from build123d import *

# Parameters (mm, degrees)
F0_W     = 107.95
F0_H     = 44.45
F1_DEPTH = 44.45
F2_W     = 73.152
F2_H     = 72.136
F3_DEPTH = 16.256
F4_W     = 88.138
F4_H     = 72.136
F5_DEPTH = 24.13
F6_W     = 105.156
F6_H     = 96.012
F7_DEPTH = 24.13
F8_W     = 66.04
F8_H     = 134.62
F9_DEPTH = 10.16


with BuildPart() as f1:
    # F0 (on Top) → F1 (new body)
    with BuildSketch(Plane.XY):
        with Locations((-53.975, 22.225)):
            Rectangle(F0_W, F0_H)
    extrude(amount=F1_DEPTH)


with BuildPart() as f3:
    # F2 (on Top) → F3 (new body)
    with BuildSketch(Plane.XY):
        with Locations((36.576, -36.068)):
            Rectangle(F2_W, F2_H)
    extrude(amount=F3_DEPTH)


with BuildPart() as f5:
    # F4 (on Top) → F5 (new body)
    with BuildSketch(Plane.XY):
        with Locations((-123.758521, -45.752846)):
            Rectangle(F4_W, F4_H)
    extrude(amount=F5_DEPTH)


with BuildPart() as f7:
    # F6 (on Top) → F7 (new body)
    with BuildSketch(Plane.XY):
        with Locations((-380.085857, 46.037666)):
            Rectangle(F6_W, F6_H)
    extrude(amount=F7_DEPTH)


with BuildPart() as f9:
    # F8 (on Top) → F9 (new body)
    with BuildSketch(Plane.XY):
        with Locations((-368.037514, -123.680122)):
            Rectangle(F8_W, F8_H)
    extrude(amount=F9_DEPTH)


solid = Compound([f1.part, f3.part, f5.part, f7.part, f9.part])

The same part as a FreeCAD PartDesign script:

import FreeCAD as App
import Part
import Sketcher

V = App.Vector
Q = App.Units.Quantity


def add_polygon(sketch, points):
    """Adds a closed chain of lines whose ends are joined by coincident constraints."""
    first, n = sketch.GeometryCount, len(points)
    for a, b in zip(points, points[1:] + points[:1]):
        sketch.addGeometry(Part.LineSegment(App.Vector(*a, 0), App.Vector(*b, 0)), False)
    for i in range(n):
        sketch.addConstraint(Sketcher.Constraint("Coincident", first + i, 2, first + (i + 1) % n, 1))

doc = App.newDocument("Part")
params = doc.addObject("Spreadsheet::Sheet", "Params")
for row, (alias, value) in enumerate([
    ("sketch1_width", "4.25 in"),
    ("sketch1_height", "1.75 in"),
    ("pad1_length", "1.75 in"),
    ("sketch2_width", "2.88 in"),
    ("sketch2_height", "2.84 in"),
    ("pad2_length", "0.64 in"),
    ("sketch3_width", "3.47 in"),
    ("sketch3_height", "2.84 in"),
    ("pad3_length", "0.95 in"),
    ("sketch4_width", "4.14 in"),
    ("sketch4_height", "3.78 in"),
    ("pad4_length", "0.95 in"),
    ("sketch5_width", "2.6 in"),
    ("sketch5_height", "5.3 in"),
    ("pad5_length", "0.4 in"),
], start=1):
    params.set(f"A{row}", alias)
    params.set(f"B{row}", "=" + value)
    params.setAlias(f"B{row}", alias)

body = doc.addObject("PartDesign::Body", "Body")

# Sketch on XY plane
sketch1 = body.newObject("Sketcher::SketchObject", "Sketch")
sketch1.AttachmentSupport = (doc.getObject("XY_Plane"), [""])
sketch1.MapMode = "FlatFace"
add_polygon(sketch1, [(-108, 44), (-108, 0), (0, 0), (0, 44)])  # lines 0-3
sketch1.addConstraint([
    Sketcher.Constraint("Vertical", 0),
    Sketcher.Constraint("Horizontal", 1),
    Sketcher.Constraint("Vertical", 2),
    Sketcher.Constraint("Horizontal", 3),
    Sketcher.Constraint("Coincident", 1, 2, -1, 1),
    Sketcher.Constraint("DistanceX", 1, 1, 1, 2, Q("4.25 in")),
    Sketcher.Constraint("DistanceY", 0, 2, 0, 1, Q("1.75 in")),
])
sketch1.setExpression("Constraints[9]", "Params.sketch1_width")
sketch1.setExpression("Constraints[10]", "Params.sketch1_height")
pad1 = body.newObject("PartDesign::Pad", "Pad")
pad1.Profile = sketch1
pad1.setExpression("Length", "Params.pad1_length")
body2 = doc.addObject("PartDesign::Body", "Body001")

# Sketch on XY plane
sketch2 = body2.newObject("Sketcher::SketchObject", "Sketch001")
sketch2.AttachmentSupport = (doc.getObject("XY_Plane001"), [""])
sketch2.MapMode = "FlatFace"
add_polygon(sketch2, [(0, 0), (0, -72), (73, -72), (73, 0)])  # lines 0-3
sketch2.addConstraint([
    Sketcher.Constraint("Vertical", 0),
    Sketcher.Constraint("Horizontal", 1),
    Sketcher.Constraint("Vertical", 2),
    Sketcher.Constraint("Horizontal", 3),
    Sketcher.Constraint("Coincident", 3, 2, -1, 1),
    Sketcher.Constraint("DistanceX", 1, 1, 1, 2, Q("2.88 in")),
    Sketcher.Constraint("DistanceY", 0, 2, 0, 1, Q("2.84 in")),
])
sketch2.setExpression("Constraints[9]", "Params.sketch2_width")
sketch2.setExpression("Constraints[10]", "Params.sketch2_height")
pad2 = body2.newObject("PartDesign::Pad", "Pad001")
pad2.Profile = sketch2
pad2.setExpression("Length", "Params.pad2_length")
body3 = doc.addObject("PartDesign::Body", "Body002")

# Sketch on XY plane
sketch3 = body3.newObject("Sketcher::SketchObject", "Sketch002")
sketch3.AttachmentSupport = (doc.getObject("XY_Plane002"), [""])
sketch3.MapMode = "FlatFace"
add_polygon(sketch3, [(-168, -10), (-168, -82), (-80, -82), (-80, -10)])  # lines 0-3
sketch3.addConstraint([
    Sketcher.Constraint("Vertical", 0),
    Sketcher.Constraint("Horizontal", 1),
    Sketcher.Constraint("Vertical", 2),
    Sketcher.Constraint("Horizontal", 3),
    Sketcher.Constraint("DistanceX", 1, 1, 1, 2, Q("3.47 in")),
    Sketcher.Constraint("DistanceY", 0, 2, 0, 1, Q("2.84 in")),
    Sketcher.Constraint("DistanceX", 0, 2, -1, 1, Q("167.827521 mm")),
    Sketcher.Constraint("DistanceY", 0, 2, -1, 1, Q("81.820846 mm")),
])
sketch3.setExpression("Constraints[8]", "Params.sketch3_width")
sketch3.setExpression("Constraints[9]", "Params.sketch3_height")
pad3 = body3.newObject("PartDesign::Pad", "Pad002")
pad3.Profile = sketch3
pad3.setExpression("Length", "Params.pad3_length")
body4 = doc.addObject("PartDesign::Body", "Body003")

# Sketch on XY plane
sketch4 = body4.newObject("Sketcher::SketchObject", "Sketch003")
sketch4.AttachmentSupport = (doc.getObject("XY_Plane003"), [""])
sketch4.MapMode = "FlatFace"
add_polygon(sketch4, [(-433, 94), (-433, -2), (-328, -2), (-328, 94)])  # lines 0-3
sketch4.addConstraint([
    Sketcher.Constraint("Vertical", 0),
    Sketcher.Constraint("Horizontal", 1),
    Sketcher.Constraint("Vertical", 2),
    Sketcher.Constraint("Horizontal", 3),
    Sketcher.Constraint("DistanceX", 1, 1, 1, 2, Q("4.14 in")),
    Sketcher.Constraint("DistanceY", 0, 2, 0, 1, Q("3.78 in")),
    Sketcher.Constraint("DistanceX", 0, 2, -1, 1, Q("432.663857 mm")),
    Sketcher.Constraint("DistanceY", 0, 2, -1, 1, Q("1.968334 mm")),
])
sketch4.setExpression("Constraints[8]", "Params.sketch4_width")
sketch4.setExpression("Constraints[9]", "Params.sketch4_height")
pad4 = body4.newObject("PartDesign::Pad", "Pad003")
pad4.Profile = sketch4
pad4.setExpression("Length", "Params.pad4_length")
body5 = doc.addObject("PartDesign::Body", "Body004")

# Sketch on XY plane
sketch5 = body5.newObject("Sketcher::SketchObject", "Sketch004")
sketch5.AttachmentSupport = (doc.getObject("XY_Plane004"), [""])
sketch5.MapMode = "FlatFace"
add_polygon(sketch5, [(-401, -56), (-401, -191), (-335, -191), (-335, -56)])  # lines 0-3
sketch5.addConstraint([
    Sketcher.Constraint("Vertical", 0),
    Sketcher.Constraint("Horizontal", 1),
    Sketcher.Constraint("Vertical", 2),
    Sketcher.Constraint("Horizontal", 3),
    Sketcher.Constraint("DistanceX", 1, 1, 1, 2, Q("2.6 in")),
    Sketcher.Constraint("DistanceY", 0, 2, 0, 1, Q("5.3 in")),
    Sketcher.Constraint("DistanceX", 0, 2, -1, 1, Q("401.057514 mm")),
    Sketcher.Constraint("DistanceY", 0, 2, -1, 1, Q("190.990122 mm")),
])
sketch5.setExpression("Constraints[8]", "Params.sketch5_width")
sketch5.setExpression("Constraints[9]", "Params.sketch5_height")
pad5 = body5.newObject("PartDesign::Pad", "Pad004")
pad5.Profile = sketch5
pad5.setExpression("Length", "Params.pad5_length")

doc.recompute()
